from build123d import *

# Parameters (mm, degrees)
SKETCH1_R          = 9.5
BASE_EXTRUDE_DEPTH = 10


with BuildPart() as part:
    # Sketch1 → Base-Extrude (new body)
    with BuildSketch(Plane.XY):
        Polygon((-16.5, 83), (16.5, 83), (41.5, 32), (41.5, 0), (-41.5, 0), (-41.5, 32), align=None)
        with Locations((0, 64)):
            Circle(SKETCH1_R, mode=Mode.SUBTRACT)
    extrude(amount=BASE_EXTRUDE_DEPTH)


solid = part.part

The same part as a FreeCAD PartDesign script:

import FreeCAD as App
import Part
import Sketcher
Q = App.Units.Quantity

doc = App.newDocument("Part")
params = doc.addObject("Spreadsheet::Sheet", "Params")
for row, (alias, value) in enumerate([
    ("sketch1_diameter", "19 mm"),
    ("sketch1_width", "33 mm"),
    ("sketch1_width2", "83 mm"),
    ("sketch1_height", "32 mm"),
    ("pad1_length", "10 mm"),
], start=1):
    params.set(f"A{row}", alias)
    params.set(f"B{row}", "=" + value)
    params.setAlias(f"B{row}", alias)

body = doc.addObject("PartDesign::Body", "Body")

sketch1 = doc.addObject("Sketcher::SketchObject", "Sketch")
body.addObject(sketch1)
sketch1.AttachmentSupport = (doc.XY_Plane, [""])
sketch1.MapMode = "FlatFace"
sketch1.addGeometry([
    Part.LineSegment(App.Vector(16.5, 83, 0), App.Vector(-16.5, 83, 0)),
    Part.LineSegment(App.Vector(-16.5, 83, 0), App.Vector(-41.5, 32, 0)),
    Part.LineSegment(App.Vector(-41.5, 32, 0), App.Vector(-41.5, 0, 0)),
    Part.LineSegment(App.Vector(-41.5, 0, 0), App.Vector(41.5, 0, 0)),
    Part.LineSegment(App.Vector(41.5, 0, 0), App.Vector(41.5, 32, 0)),
    Part.LineSegment(App.Vector(41.5, 32, 0), App.Vector(16.5, 83, 0)),
    Part.Circle(App.Vector(0, 64, 0), App.Vector(0, 0, 1), 9.5),
], False)
sketch1.addConstraint([
    Sketcher.Constraint("Coincident", 0, 2, 1, 1),
    Sketcher.Constraint("Coincident", 1, 2, 2, 1),
    Sketcher.Constraint("Coincident", 2, 2, 3, 1),
    Sketcher.Constraint("Coincident", 3, 2, 4, 1),
    Sketcher.Constraint("Coincident", 4, 2, 5, 1),
    Sketcher.Constraint("Coincident", 5, 2, 0, 1),
    Sketcher.Constraint("Horizontal", 0),
    Sketcher.Constraint("Vertical", 2),
    Sketcher.Constraint("Horizontal", 3),
    Sketcher.Constraint("Vertical", 4),
    Sketcher.Constraint("Symmetric", 2, 2, 3, 2, -1, 1),
    Sketcher.Constraint("PointOnObject", 6, 3, -2),
    Sketcher.Constraint("Horizontal", 1, 2, 4, 2),
    Sketcher.Constraint("Equal", 1, 5),
    Sketcher.Constraint("Diameter", 6, Q("19 mm")),
    Sketcher.Constraint("DistanceX", 0, 2, 0, 1, Q("33 mm")),
    Sketcher.Constraint("DistanceX", 3, 1, 3, 2, Q("83 mm")),
    Sketcher.Constraint("DistanceY", 2, 2, 2, 1, Q("32 mm")),
    Sketcher.Constraint("DistanceY", -1, 1, 6, 3, Q("64 mm")),
    Sketcher.Constraint("DistanceY", -1, 1, 0, 2, Q("83 mm")),
])
sketch1.setExpression("Constraints[14]", "Params.sketch1_diameter")
sketch1.setExpression("Constraints[15]", "Params.sketch1_width")
sketch1.setExpression("Constraints[16]", "Params.sketch1_width2")
sketch1.setExpression("Constraints[17]", "Params.sketch1_height")
pad1 = doc.addObject("PartDesign::Pad", "Pad")
body.addObject(pad1)
pad1.Profile = sketch1
pad1.setExpression("Length", "Params.pad1_length")

doc.recompute()
